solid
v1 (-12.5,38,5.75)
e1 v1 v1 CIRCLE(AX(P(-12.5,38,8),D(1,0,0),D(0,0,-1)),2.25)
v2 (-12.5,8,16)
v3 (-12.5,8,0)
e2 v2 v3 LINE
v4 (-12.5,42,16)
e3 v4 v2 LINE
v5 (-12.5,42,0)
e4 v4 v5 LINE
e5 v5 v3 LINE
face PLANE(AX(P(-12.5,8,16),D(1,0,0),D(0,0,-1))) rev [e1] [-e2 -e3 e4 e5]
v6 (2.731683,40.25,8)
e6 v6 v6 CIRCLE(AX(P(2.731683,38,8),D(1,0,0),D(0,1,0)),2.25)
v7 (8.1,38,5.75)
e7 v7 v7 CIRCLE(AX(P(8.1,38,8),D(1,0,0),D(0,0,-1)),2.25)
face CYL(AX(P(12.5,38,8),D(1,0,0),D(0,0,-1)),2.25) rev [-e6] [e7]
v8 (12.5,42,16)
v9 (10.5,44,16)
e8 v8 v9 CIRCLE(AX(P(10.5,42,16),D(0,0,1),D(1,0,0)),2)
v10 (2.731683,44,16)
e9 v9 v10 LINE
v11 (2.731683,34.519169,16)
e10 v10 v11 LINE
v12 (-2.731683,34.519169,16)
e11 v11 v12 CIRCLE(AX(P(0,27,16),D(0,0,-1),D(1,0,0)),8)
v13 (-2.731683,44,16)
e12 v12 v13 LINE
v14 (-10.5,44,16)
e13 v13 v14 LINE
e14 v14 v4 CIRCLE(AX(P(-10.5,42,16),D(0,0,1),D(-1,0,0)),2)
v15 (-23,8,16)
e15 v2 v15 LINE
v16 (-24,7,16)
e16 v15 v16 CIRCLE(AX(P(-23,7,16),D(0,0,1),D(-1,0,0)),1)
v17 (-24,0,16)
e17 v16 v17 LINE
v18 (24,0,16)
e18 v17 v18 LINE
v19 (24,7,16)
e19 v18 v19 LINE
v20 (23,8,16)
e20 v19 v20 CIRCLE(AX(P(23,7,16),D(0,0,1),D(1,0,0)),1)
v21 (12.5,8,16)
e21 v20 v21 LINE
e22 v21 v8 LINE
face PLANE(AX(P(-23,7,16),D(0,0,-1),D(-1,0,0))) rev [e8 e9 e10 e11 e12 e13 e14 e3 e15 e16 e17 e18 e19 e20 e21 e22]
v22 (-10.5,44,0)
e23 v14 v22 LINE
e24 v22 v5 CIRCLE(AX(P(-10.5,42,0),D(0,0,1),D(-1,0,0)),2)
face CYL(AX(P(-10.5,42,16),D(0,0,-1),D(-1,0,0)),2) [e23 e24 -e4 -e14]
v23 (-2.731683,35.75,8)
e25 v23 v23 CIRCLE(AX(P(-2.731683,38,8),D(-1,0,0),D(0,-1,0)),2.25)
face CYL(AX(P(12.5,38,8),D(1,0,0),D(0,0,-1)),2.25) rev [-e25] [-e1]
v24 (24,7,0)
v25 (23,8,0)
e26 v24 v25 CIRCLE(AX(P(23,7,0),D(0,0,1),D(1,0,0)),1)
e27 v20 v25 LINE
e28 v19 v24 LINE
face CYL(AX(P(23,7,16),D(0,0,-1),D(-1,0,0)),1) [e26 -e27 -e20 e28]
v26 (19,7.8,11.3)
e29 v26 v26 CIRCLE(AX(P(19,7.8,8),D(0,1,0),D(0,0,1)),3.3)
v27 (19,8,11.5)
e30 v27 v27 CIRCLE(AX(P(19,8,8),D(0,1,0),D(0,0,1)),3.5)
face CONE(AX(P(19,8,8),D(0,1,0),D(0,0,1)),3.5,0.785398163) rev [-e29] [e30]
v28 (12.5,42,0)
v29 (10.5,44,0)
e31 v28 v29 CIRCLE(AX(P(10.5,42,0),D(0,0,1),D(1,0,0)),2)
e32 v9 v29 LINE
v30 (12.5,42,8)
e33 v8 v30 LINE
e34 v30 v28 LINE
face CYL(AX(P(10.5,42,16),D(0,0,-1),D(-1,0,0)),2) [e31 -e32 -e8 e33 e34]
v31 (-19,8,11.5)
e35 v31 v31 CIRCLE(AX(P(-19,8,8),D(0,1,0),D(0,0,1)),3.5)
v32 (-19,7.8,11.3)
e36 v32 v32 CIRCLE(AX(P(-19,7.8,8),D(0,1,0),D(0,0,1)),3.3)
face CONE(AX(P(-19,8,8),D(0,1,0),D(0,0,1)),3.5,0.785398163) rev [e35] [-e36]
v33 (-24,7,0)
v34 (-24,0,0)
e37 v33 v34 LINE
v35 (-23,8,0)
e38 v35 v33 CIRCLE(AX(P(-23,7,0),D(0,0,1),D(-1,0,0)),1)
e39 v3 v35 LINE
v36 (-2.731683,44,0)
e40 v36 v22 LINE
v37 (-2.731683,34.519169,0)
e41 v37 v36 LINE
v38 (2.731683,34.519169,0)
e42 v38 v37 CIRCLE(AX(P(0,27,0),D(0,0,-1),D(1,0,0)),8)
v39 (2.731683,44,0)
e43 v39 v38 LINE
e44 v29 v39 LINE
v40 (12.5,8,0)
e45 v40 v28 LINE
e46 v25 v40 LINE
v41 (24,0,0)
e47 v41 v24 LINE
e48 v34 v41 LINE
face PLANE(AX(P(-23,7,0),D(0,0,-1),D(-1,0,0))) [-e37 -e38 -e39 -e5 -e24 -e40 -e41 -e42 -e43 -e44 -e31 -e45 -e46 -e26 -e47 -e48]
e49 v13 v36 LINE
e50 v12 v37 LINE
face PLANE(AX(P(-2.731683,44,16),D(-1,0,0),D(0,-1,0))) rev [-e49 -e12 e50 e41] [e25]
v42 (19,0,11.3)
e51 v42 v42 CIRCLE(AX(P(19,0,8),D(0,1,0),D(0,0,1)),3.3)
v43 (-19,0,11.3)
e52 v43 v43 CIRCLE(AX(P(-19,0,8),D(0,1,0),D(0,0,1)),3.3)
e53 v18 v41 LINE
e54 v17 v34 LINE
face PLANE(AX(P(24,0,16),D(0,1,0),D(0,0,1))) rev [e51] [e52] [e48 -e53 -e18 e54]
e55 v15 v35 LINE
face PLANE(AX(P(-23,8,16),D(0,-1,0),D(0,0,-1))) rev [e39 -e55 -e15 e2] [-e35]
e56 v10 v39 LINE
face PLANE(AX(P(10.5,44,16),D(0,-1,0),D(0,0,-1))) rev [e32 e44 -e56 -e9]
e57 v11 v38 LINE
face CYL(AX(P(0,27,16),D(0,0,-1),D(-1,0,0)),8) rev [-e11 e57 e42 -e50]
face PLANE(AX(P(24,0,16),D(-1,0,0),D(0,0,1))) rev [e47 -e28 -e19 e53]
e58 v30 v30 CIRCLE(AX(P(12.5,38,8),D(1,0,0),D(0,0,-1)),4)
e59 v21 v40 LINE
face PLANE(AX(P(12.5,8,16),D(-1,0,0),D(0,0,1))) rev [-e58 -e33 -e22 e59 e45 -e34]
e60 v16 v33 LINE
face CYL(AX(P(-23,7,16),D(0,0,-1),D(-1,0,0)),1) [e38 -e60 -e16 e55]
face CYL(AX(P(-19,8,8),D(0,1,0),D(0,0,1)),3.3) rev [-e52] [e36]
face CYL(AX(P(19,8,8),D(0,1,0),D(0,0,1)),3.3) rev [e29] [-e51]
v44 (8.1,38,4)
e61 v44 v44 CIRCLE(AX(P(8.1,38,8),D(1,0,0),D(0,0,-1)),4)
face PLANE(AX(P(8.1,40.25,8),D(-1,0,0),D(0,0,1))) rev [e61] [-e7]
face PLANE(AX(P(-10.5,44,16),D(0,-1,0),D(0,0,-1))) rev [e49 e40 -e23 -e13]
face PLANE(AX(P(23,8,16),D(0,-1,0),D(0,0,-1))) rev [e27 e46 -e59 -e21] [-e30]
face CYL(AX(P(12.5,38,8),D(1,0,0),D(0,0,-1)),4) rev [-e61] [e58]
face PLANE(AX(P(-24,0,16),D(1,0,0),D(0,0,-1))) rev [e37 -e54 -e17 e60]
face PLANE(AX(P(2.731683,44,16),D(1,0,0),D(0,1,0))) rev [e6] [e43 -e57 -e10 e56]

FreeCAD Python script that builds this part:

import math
import FreeCAD as App
import Part
import Sketcher
from FreeCAD import Vector
Q = App.Units.Quantity

doc = App.newDocument("Part")
params = doc.addObject("Spreadsheet::Sheet", "Params")
for row, (alias, value) in enumerate([
    ("sketch1_radius", "1 mm"),
    ("sketch1_radius2", "2 mm"),
    ("sketch1_radius3", "8 mm"),
    ("sketch1_width", "48 mm"),
    ("sketch1_height", "7 mm"),
    ("pad1_length", "16 mm"),
    ("sketch2_diameter", "6.6 mm"),
    ("hole_diameter", "6.6 mm"),
    ("hole_csink_diameter", "7 mm"),
    ("sketch3_diameter", "4.5 mm"),
    ("hole2_diameter", "4.5 mm"),
    ("hole2_cbore_diameter", "8 mm"),
    ("hole2_cbore_depth", "4.4 mm"),
], start=1):
    params.set(f"A{row}", alias)
    params.set(f"B{row}", "=" + value)
    params.setAlias(f"B{row}", alias)

body = doc.addObject("PartDesign::Body", "Body")

sketch1 = body.newObject("Sketcher::SketchObject", "Sketch")
sketch1.AttachmentSupport = (doc.getObject("XY_Plane"), [""])
sketch1.MapMode = "FlatFace"
sketch1.addGeometry([
    Part.LineSegment(Vector(-24, 0, 0), Vector(24, 0, 0)),
    Part.LineSegment(Vector(24, 0, 0), Vector(24, 7, 0)),
    Part.ArcOfCircle(Part.Circle(Vector(23, 7, 0), Vector(0, 0, 1), 1), math.radians(0), math.radians(90)),
    Part.LineSegment(Vector(23, 8, 0), Vector(12.5, 8, 0)),
    Part.LineSegment(Vector(12.5, 8, 0), Vector(12.5, 42, 0)),
    Part.ArcOfCircle(Part.Circle(Vector(10.5, 42, 0), Vector(0, 0, 1), 2), math.radians(0), math.radians(90)),
    Part.LineSegment(Vector(10.5, 44, 0), Vector(2.731683, 44, 0)),
    Part.LineSegment(Vector(2.731683, 44, 0), Vector(2.731683, 34.519169, 0)),
    Part.ArcOfCircle(Part.Circle(Vector(0, 27, 0), Vector(0, 0, 1), 8), math.radians(109.965874), math.radians(430.034126)),
    Part.LineSegment(Vector(-2.731683, 34.519169, 0), Vector(-2.731683, 44, 0)),
    Part.LineSegment(Vector(-2.731683, 44, 0), Vector(-10.5, 44, 0)),
    Part.ArcOfCircle(Part.Circle(Vector(-10.5, 42, 0), Vector(0, 0, 1), 2), math.radians(90), math.radians(180)),
    Part.LineSegment(Vector(-12.5, 42, 0), Vector(-12.5, 8, 0)),
    Part.LineSegment(Vector(-12.5, 8, 0), Vector(-23, 8, 0)),
    Part.ArcOfCircle(Part.Circle(Vector(-23, 7, 0), Vector(0, 0, 1), 1), math.radians(90), math.radians(180)),
    Part.LineSegment(Vector(-24, 7, 0), Vector(-24, 0, 0)),
], False)
sketch1.addConstraint([
    Sketcher.Constraint("Coincident", 0, 2, 1, 1),
    Sketcher.Constraint("Tangent", 1, 2, 2, 1),
    Sketcher.Constraint("Tangent", 2, 2, 3, 1),
    Sketcher.Constraint("Coincident", 3, 2, 4, 1),
    Sketcher.Constraint("Tangent", 4, 2, 5, 1),
    Sketcher.Constraint("Tangent", 5, 2, 6, 1),
    Sketcher.Constraint("Coincident", 6, 2, 7, 1),
    Sketcher.Constraint("Coincident", 7, 2, 8, 2),
    Sketcher.Constraint("Coincident", 8, 1, 9, 1),
    Sketcher.Constraint("Coincident", 9, 2, 10, 1),
    Sketcher.Constraint("Tangent", 10, 2, 11, 1),
    Sketcher.Constraint("Tangent", 11, 2, 12, 1),
    Sketcher.Constraint("Coincident", 12, 2, 13, 1),
    Sketcher.Constraint("Tangent", 13, 2, 14, 1),
    Sketcher.Constraint("Tangent", 14, 2, 15, 1),
    Sketcher.Constraint("Coincident", 15, 2, 0, 1),
    Sketcher.Constraint("Horizontal", 0),
    Sketcher.Constraint("Vertical", 1),
    Sketcher.Constraint("Horizontal", 3),
    Sketcher.Constraint("Vertical", 4),
    Sketcher.Constraint("Horizontal", 6),
    Sketcher.Constraint("Vertical", 7),
    Sketcher.Constraint("Vertical", 9),
    Sketcher.Constraint("Horizontal", 10),
    Sketcher.Constraint("Vertical", 12),
    Sketcher.Constraint("Horizontal", 13),
    Sketcher.Constraint("Vertical", 15),
    Sketcher.Constraint("Equal", 5, 11),
    Sketcher.Constraint("Equal", 2, 14),
    Sketcher.Constraint("Symmetric", 0, 2, 15, 2, -1, 1),
    Sketcher.Constraint("Symmetric", 5, 3, 11, 3, -2),
    Sketcher.Constraint("Symmetric", 7, 2, 8, 1, -2),
    Sketcher.Constraint("Horizontal", 2, 3, 14, 3),
    Sketcher.Constraint("Radius", 2, Q("1 mm")),
    Sketcher.Constraint("Radius", 5, Q("2 mm")),
    Sketcher.Constraint("Radius", 8, Q("8 mm")),
    Sketcher.Constraint("DistanceX", 0, 1, 0, 2, Q("48 mm")),
    Sketcher.Constraint("DistanceY", 1, 1, 1, 2, Q("7 mm")),
    Sketcher.Constraint("DistanceY", 4, 1, 4, 2, Q("34 mm")),
    Sketcher.Constraint("DistanceX", 3, 2, 3, 1, Q("10.5 mm")),
    Sketcher.Constraint("DistanceY", -1, 1, 8, 3, Q("27 mm")),
    Sketcher.Constraint("DistanceY", 7, 2, 7, 1, Q("9.480831 mm")),
])
sketch1.setExpression("Constraints[33]", "Params.sketch1_radius")
sketch1.setExpression("Constraints[34]", "Params.sketch1_radius2")
sketch1.setExpression("Constraints[35]", "Params.sketch1_radius3")
sketch1.setExpression("Constraints[36]", "Params.sketch1_width")
sketch1.setExpression("Constraints[37]", "Params.sketch1_height")
pad1 = body.newObject("PartDesign::Pad", "Pad")
pad1.Profile = sketch1
pad1.setExpression("Length", "Params.pad1_length")

sketch2 = body.newObject("Sketcher::SketchObject", "Sketch001")
sketch2.AttachmentSupport = (doc.getObject("XZ_Plane"), [""])
sketch2.MapMode = "FlatFace"
sketch2.AttachmentOffset = App.Placement(Vector(0, 0, -8), App.Rotation())
sketch2.addGeometry([
    Part.Circle(Vector(-19, 8, 0), Vector(0, 0, 1), 3.3),
    Part.Circle(Vector(19, 8, 0), Vector(0, 0, 1), 3.3),
], False)
sketch2.addConstraint([
    Sketcher.Constraint("Equal", 0, 1),
    Sketcher.Constraint("Symmetric", 0, 3, 1, 3, -2),
    Sketcher.Constraint("Diameter", 0, Q("6.6 mm")),
    Sketcher.Constraint("DistanceX", 0, 3, -1, 1, Q("19 mm")),
    Sketcher.Constraint("DistanceY", -1, 1, 0, 3, Q("8 mm")),
])
sketch2.setExpression("Constraints[2]", "Params.sketch2_diameter")
doc.recompute()
hole = body.newObject("PartDesign::Hole", "Hole")
hole.Profile = sketch2
hole.ThreadType = "None"
hole.setExpression("Diameter", "Params.hole_diameter")
hole.DepthType = "ThroughAll"
hole.HoleCutType = "Countersink"
hole.setExpression("HoleCutDiameter", "Params.hole_csink_diameter")
hole.HoleCutCountersinkAngle = 90
hole.Reversed = True

sketch3 = body.newObject("Sketcher::SketchObject", "Sketch002")
sketch3.AttachmentSupport = (doc.getObject("YZ_Plane"), [""])
sketch3.MapMode = "FlatFace"
sketch3.AttachmentOffset = App.Placement(Vector(0, 0, 12.5), App.Rotation())
sketch3.addGeometry(Part.Circle(Vector(38, 8, 0), Vector(0, 0, 1), 2.25), False)
sketch3.addConstraint([
    Sketcher.Constraint("Diameter", 0, Q("4.5 mm")),
    Sketcher.Constraint("DistanceX", -1, 1, 0, 3, Q("38 mm")),
    Sketcher.Constraint("DistanceY", -1, 1, 0, 3, Q("8 mm")),
])
sketch3.setExpression("Constraints[0]", "Params.sketch3_diameter")
doc.recompute()
hole2 = body.newObject("PartDesign::Hole", "Hole001")
hole2.Profile = sketch3
hole2.ThreadType = "None"
hole2.setExpression("Diameter", "Params.hole2_diameter")
hole2.DepthType = "ThroughAll"
hole2.HoleCutType = "Counterbore"
hole2.setExpression("HoleCutDiameter", "Params.hole2_cbore_diameter")
hole2.setExpression("HoleCutDepth", "Params.hole2_cbore_depth")

doc.recompute()
